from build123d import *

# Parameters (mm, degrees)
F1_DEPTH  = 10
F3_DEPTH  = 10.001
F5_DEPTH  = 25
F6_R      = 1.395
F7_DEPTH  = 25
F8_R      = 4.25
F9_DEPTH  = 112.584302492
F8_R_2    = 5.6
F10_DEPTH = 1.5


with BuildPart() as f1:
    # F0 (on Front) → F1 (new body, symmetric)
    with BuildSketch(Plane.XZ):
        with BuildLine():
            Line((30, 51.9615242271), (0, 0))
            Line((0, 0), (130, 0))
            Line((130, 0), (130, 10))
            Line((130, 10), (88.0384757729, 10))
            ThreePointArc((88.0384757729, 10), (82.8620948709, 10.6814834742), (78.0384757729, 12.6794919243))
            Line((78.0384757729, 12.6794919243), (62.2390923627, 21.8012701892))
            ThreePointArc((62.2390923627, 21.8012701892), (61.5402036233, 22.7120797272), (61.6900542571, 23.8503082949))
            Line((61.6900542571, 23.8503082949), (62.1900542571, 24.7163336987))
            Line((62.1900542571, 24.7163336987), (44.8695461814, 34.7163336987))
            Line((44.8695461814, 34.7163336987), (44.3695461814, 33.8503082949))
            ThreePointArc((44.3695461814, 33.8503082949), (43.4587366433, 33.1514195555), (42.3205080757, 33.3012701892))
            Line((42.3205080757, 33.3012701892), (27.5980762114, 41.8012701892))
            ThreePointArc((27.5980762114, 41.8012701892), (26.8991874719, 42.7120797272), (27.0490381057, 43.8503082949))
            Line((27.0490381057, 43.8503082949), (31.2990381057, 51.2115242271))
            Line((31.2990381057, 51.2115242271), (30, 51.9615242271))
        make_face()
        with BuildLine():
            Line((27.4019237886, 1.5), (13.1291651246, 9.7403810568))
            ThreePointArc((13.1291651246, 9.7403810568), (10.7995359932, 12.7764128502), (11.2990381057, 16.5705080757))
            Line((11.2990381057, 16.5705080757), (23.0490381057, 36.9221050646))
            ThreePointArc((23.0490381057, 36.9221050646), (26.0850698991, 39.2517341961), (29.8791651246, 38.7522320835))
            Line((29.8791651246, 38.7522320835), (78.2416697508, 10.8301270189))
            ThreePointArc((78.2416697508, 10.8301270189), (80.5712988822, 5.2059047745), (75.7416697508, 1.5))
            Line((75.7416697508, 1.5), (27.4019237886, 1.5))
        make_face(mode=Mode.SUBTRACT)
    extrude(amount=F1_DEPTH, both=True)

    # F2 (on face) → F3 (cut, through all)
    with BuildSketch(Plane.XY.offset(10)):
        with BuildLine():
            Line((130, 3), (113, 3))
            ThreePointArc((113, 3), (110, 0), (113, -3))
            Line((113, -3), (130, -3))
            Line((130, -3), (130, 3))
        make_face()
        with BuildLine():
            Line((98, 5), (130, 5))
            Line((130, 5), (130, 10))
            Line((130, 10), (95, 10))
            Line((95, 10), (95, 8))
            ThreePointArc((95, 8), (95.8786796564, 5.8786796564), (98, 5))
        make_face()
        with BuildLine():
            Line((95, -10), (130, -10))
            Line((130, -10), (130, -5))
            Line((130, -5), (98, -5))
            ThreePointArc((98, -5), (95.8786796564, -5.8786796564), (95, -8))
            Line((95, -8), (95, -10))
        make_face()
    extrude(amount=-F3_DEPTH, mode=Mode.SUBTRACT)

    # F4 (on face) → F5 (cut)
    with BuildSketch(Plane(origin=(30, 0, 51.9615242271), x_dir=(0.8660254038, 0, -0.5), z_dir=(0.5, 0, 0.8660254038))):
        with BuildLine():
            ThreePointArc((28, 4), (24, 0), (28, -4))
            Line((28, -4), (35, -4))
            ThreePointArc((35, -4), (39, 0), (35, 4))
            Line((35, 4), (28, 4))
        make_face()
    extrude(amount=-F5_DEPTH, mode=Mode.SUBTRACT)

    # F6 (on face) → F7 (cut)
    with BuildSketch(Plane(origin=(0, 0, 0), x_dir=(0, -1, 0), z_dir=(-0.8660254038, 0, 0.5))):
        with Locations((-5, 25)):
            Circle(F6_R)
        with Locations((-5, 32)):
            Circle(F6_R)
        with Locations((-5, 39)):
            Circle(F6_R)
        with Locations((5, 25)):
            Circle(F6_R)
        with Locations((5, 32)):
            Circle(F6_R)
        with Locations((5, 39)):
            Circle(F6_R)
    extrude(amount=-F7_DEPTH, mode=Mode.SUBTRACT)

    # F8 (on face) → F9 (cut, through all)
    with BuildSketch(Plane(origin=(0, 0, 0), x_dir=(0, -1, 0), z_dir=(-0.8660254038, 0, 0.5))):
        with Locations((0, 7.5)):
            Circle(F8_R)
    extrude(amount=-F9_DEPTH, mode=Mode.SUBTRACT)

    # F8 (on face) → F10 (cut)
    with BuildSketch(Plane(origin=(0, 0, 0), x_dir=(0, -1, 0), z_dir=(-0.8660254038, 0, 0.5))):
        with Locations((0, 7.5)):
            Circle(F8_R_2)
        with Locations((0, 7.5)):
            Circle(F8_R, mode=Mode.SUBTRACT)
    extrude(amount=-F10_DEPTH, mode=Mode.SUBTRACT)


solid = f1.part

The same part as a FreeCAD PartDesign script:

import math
import FreeCAD as App
import Part
import Sketcher

V = App.Vector
Q = App.Units.Quantity

doc = App.newDocument("Part")
params = doc.addObject("Spreadsheet::Sheet", "Params")
for row, (alias, value) in enumerate([
    ("sketch1_radius", "20 mm"),
    ("sketch1_radius2", "5 mm"),
    ("sketch1_radius3", "1.5 mm"),
    ("sketch1_width", "130 mm"),
    ("sketch1_height", "10 mm"),
    ("pad1_length", "20 mm"),
    ("sketch2_radius", "3 mm"),
    ("sketch2_width", "17 mm"),
    ("sketch2_width2", "32 mm"),
    ("sketch2_height", "5 mm"),
    ("sketch3_radius", "4 mm"),
    ("sketch3_width", "7 mm"),
    ("pocket2_length", "25 mm"),
    ("sketch4_diameter", "2.79 mm"),
    ("pocket3_length", "25 mm"),
    ("sketch5_diameter", "8.5 mm"),
    ("sketch6_diameter", "11.2 mm"),
    ("sketch6_diameter2", "8.5 mm"),
    ("pocket5_length", "1.5 mm"),
], start=1):
    params.set(f"A{row}", alias)
    params.set(f"B{row}", "=" + value)
    params.setAlias(f"B{row}", alias)

body = doc.addObject("PartDesign::Body", "Body")

sketch1 = body.newObject("Sketcher::SketchObject", "Sketch")
sketch1.AttachmentSupport = (doc.getObject("XZ_Plane"), [""])
sketch1.MapMode = "FlatFace"
sketch1.addGeometry(Part.LineSegment(V(30, 52, 0), V(0, 0, 0)), False)
sketch1.addGeometry(Part.LineSegment(V(0, 0, 0), V(130, 0, 0)), False)
sketch1.addGeometry(Part.LineSegment(V(130, 0, 0), V(130, 10, 0)), False)
sketch1.addGeometry(Part.LineSegment(V(130, 10, 0), V(88, 10, 0)), False)
sketch1.addGeometry(Part.ArcOfCircle(Part.Circle(V(88, 30, 0), V(0, 0, 1), 20), math.radians(-120), math.radians(-90)), False)
sketch1.addGeometry(Part.LineSegment(V(78, 12.7, 0), V(62.2, 21.8, 0)), False)
sketch1.addGeometry(Part.ArcOfCircle(Part.Circle(V(63, 23.1, 0), V(0, 0, 1), 1.5), math.radians(150), math.radians(240)), False)
sketch1.addGeometry(Part.LineSegment(V(61.7, 23.9, 0), V(62.2, 24.7, 0)), False)
sketch1.addGeometry(Part.LineSegment(V(62.2, 24.7, 0), V(44.9, 34.7, 0)), False)
sketch1.addGeometry(Part.LineSegment(V(44.9, 34.7, 0), V(44.4, 33.9, 0)), False)
sketch1.addGeometry(Part.ArcOfCircle(Part.Circle(V(43.1, 34.6, 0), V(0, 0, 1), 1.5), math.radians(-120), math.radians(-30)), False)
sketch1.addGeometry(Part.LineSegment(V(42.3, 33.3, 0), V(27.6, 41.8, 0)), False)
sketch1.addGeometry(Part.ArcOfCircle(Part.Circle(V(28.3, 43.1, 0), V(0, 0, 1), 1.5), math.radians(150), math.radians(240)), False)
sketch1.addGeometry(Part.LineSegment(V(27, 43.9, 0), V(31.3, 51.2, 0)), False)
sketch1.addGeometry(Part.LineSegment(V(31.3, 51.2, 0), V(30, 52, 0)), False)
sketch1.addGeometry(Part.LineSegment(V(75.7, 1.5, 0), V(27.4, 1.5, 0)), False)
sketch1.addGeometry(Part.LineSegment(V(27.4, 1.5, 0), V(13.1, 9.7, 0)), False)
sketch1.addGeometry(Part.ArcOfCircle(Part.Circle(V(15.6, 14.1, 0), V(0, 0, 1), 5), math.radians(150), math.radians(240)), False)
sketch1.addGeometry(Part.LineSegment(V(11.3, 16.6, 0), V(23, 36.9, 0)), False)
sketch1.addGeometry(Part.ArcOfCircle(Part.Circle(V(27.4, 34.4, 0), V(0, 0, 1), 5), math.radians(60), math.radians(150)), False)
sketch1.addGeometry(Part.LineSegment(V(29.9, 38.8, 0), V(78.2, 10.8, 0)), False)
sketch1.addGeometry(Part.ArcOfCircle(Part.Circle(V(75.7, 6.5, 0), V(0, 0, 1), 5), math.radians(-90), math.radians(60)), False)
sketch1.addConstraint(Sketcher.Constraint("Coincident", 0, 2, 1, 1))
sketch1.addConstraint(Sketcher.Constraint("Coincident", 1, 2, 2, 1))
sketch1.addConstraint(Sketcher.Constraint("Coincident", 2, 2, 3, 1))
sketch1.addConstraint(Sketcher.Constraint("Tangent", 3, 2, 4, 2))
sketch1.addConstraint(Sketcher.Constraint("Tangent", 4, 1, 5, 1))
sketch1.addConstraint(Sketcher.Constraint("Tangent", 5, 2, 6, 2))
sketch1.addConstraint(Sketcher.Constraint("Tangent", 6, 1, 7, 1))
sketch1.addConstraint(Sketcher.Constraint("Coincident", 7, 2, 8, 1))
sketch1.addConstraint(Sketcher.Constraint("Coincident", 8, 2, 9, 1))
sketch1.addConstraint(Sketcher.Constraint("Tangent", 9, 2, 10, 2))
sketch1.addConstraint(Sketcher.Constraint("Tangent", 10, 1, 11, 1))
sketch1.addConstraint(Sketcher.Constraint("Tangent", 11, 2, 12, 2))
sketch1.addConstraint(Sketcher.Constraint("Tangent", 12, 1, 13, 1))
sketch1.addConstraint(Sketcher.Constraint("Coincident", 13, 2, 14, 1))
sketch1.addConstraint(Sketcher.Constraint("Coincident", 14, 2, 0, 1))
sketch1.addConstraint(Sketcher.Constraint("Coincident", 15, 2, 16, 1))
sketch1.addConstraint(Sketcher.Constraint("Tangent", 16, 2, 17, 2))
sketch1.addConstraint(Sketcher.Constraint("Tangent", 17, 1, 18, 1))
sketch1.addConstraint(Sketcher.Constraint("Tangent", 18, 2, 19, 2))
sketch1.addConstraint(Sketcher.Constraint("Tangent", 19, 1, 20, 1))
sketch1.addConstraint(Sketcher.Constraint("Tangent", 20, 2, 21, 2))
sketch1.addConstraint(Sketcher.Constraint("Tangent", 21, 1, 15, 1))
sketch1.addConstraint(Sketcher.Constraint("Horizontal", 1))
sketch1.addConstraint(Sketcher.Constraint("Vertical", 2))
sketch1.addConstraint(Sketcher.Constraint("Horizontal", 3))
sketch1.addConstraint(Sketcher.Constraint("Horizontal", 15))
sketch1.addConstraint(Sketcher.Constraint("Coincident", 0, 2, -1, 1))
sketch1.addConstraint(Sketcher.Constraint("Equal", 6, 10))
sketch1.addConstraint(Sketcher.Constraint("Equal", 10, 12))
sketch1.addConstraint(Sketcher.Constraint("Equal", 17, 19))
sketch1.addConstraint(Sketcher.Constraint("Equal", 19, 21))
sketch1.addConstraint(Sketcher.Constraint("Perpendicular", 0, 5))
sketch1.addConstraint(Sketcher.Constraint("Perpendicular", 5, 7))
sketch1.addConstraint(Sketcher.Constraint("Perpendicular", 7, 8))
sketch1.addConstraint(Sketcher.Constraint("Perpendicular", 8, 9))
sketch1.addConstraint(Sketcher.Constraint("Perpendicular", 9, 11))
sketch1.addConstraint(Sketcher.Constraint("Perpendicular", 11, 13))
sketch1.addConstraint(Sketcher.Constraint("Perpendicular", 13, 14))
sketch1.addConstraint(Sketcher.Constraint("Parallel", 14, 16))
sketch1.addConstraint(Sketcher.Constraint("Perpendicular", 16, 18))
sketch1.addConstraint(Sketcher.Constraint("Perpendicular", 18, 20))
sketch1.addConstraint(Sketcher.Constraint("Equal", 7, 9))
sketch1.addConstraint(Sketcher.Constraint("Radius", 4, 20.0))
sketch1.addConstraint(Sketcher.Constraint("Radius", 17, 5.0))
sketch1.addConstraint(Sketcher.Constraint("Radius", 6, 1.5))
sketch1.addConstraint(Sketcher.Constraint("DistanceX", 1, 1, 1, 2, 130.0))
sketch1.addConstraint(Sketcher.Constraint("DistanceY", 2, 1, 2, 2, 10.0))
sketch1.addConstraint(Sketcher.Constraint("Angle", 0, Q("-120 deg")))
sketch1.addConstraint(Sketcher.Constraint("Distance", 0, 60.0))
sketch1.addConstraint(Sketcher.Constraint("Distance", 7, 1.0))
sketch1.addConstraint(Sketcher.Constraint("Distance", 8, 20.0))
sketch1.addConstraint(Sketcher.Constraint("Distance", 11, 17.0))
sketch1.addConstraint(Sketcher.Constraint("DistanceX", 18, 2, 12, 1, 4.0))
sketch1.addConstraint(Sketcher.Constraint("Distance", 13, 8.5))
sketch1.addConstraint(Sketcher.Constraint("Distance", 14, 1.5))
sketch1.addConstraint(Sketcher.Constraint("Distance", 18, 23.5))
sketch1.addConstraint(Sketcher.Constraint("DistanceY", -1, 1, 21, 3, 6.5))
sketch1.addConstraint(Sketcher.Constraint("DistanceY", 17, 3, 12, 3, 29.0298))
sketch1.setExpression("Constraints[42]", "Params.sketch1_radius")
sketch1.setExpression("Constraints[43]", "Params.sketch1_radius2")
sketch1.setExpression("Constraints[44]", "Params.sketch1_radius3")
sketch1.setExpression("Constraints[45]", "Params.sketch1_width")
sketch1.setExpression("Constraints[46]", "Params.sketch1_height")
pad1 = body.newObject("PartDesign::Pad", "Pad")
pad1.Profile = sketch1
pad1.setExpression("Length", "Params.pad1_length")
pad1.Midplane = True

sketch2 = body.newObject("Sketcher::SketchObject", "Sketch001")
sketch2.AttachmentSupport = (doc.getObject("XY_Plane"), [""])
sketch2.MapMode = "FlatFace"
sketch2.AttachmentOffset = App.Placement(V(0, 0, 10), App.Rotation())
sketch2.addGeometry(Part.LineSegment(V(130, 3, 0), V(113, 3, 0)), False)
sketch2.addGeometry(Part.ArcOfCircle(Part.Circle(V(113, 0, 0), V(0, 0, 1), 3), math.radians(90), math.radians(270)), False)
sketch2.addGeometry(Part.LineSegment(V(113, -3, 0), V(130, -3, 0)), False)
sketch2.addGeometry(Part.LineSegment(V(130, -3, 0), V(130, 3, 0)), False)
sketch2.addGeometry(Part.LineSegment(V(98, 5, 0), V(130, 5, 0)), False)
sketch2.addGeometry(Part.LineSegment(V(130, 5, 0), V(130, 10, 0)), False)
sketch2.addGeometry(Part.LineSegment(V(130, 10, 0), V(95, 10, 0)), False)
sketch2.addGeometry(Part.LineSegment(V(95, 10, 0), V(95, 8, 0)), False)
sketch2.addGeometry(Part.ArcOfCircle(Part.Circle(V(98, 8, 0), V(0, 0, 1), 3), math.radians(180), math.radians(270)), False)
sketch2.addGeometry(Part.LineSegment(V(95, -10, 0), V(130, -10, 0)), False)
sketch2.addGeometry(Part.LineSegment(V(130, -10, 0), V(130, -5, 0)), False)
sketch2.addGeometry(Part.LineSegment(V(130, -5, 0), V(98, -5, 0)), False)
sketch2.addGeometry(Part.ArcOfCircle(Part.Circle(V(98, -8, 0), V(0, 0, 1), 3), math.radians(90), math.radians(180)), False)
sketch2.addGeometry(Part.LineSegment(V(95, -8, 0), V(95, -10, 0)), False)
sketch2.addConstraint(Sketcher.Constraint("Tangent", 0, 2, 1, 1))
sketch2.addConstraint(Sketcher.Constraint("Tangent", 1, 2, 2, 1))
sketch2.addConstraint(Sketcher.Constraint("Coincident", 2, 2, 3, 1))
sketch2.addConstraint(Sketcher.Constraint("Coincident", 3, 2, 0, 1))
sketch2.addConstraint(Sketcher.Constraint("Coincident", 4, 2, 5, 1))
sketch2.addConstraint(Sketcher.Constraint("Coincident", 5, 2, 6, 1))
sketch2.addConstraint(Sketcher.Constraint("Coincident", 6, 2, 7, 1))
sketch2.addConstraint(Sketcher.Constraint("Tangent", 7, 2, 8, 1))
sketch2.addConstraint(Sketcher.Constraint("Tangent", 8, 2, 4, 1))
sketch2.addConstraint(Sketcher.Constraint("Coincident", 9, 2, 10, 1))
sketch2.addConstraint(Sketcher.Constraint("Coincident", 10, 2, 11, 1))
sketch2.addConstraint(Sketcher.Constraint("Tangent", 11, 2, 12, 1))
sketch2.addConstraint(Sketcher.Constraint("Tangent", 12, 2, 13, 1))
sketch2.addConstraint(Sketcher.Constraint("Coincident", 13, 2, 9, 1))
sketch2.addConstraint(Sketcher.Constraint("Horizontal", 0))
sketch2.addConstraint(Sketcher.Constraint("Horizontal", 2))
sketch2.addConstraint(Sketcher.Constraint("Vertical", 3))
sketch2.addConstraint(Sketcher.Constraint("Horizontal", 4))
sketch2.addConstraint(Sketcher.Constraint("Vertical", 5))
sketch2.addConstraint(Sketcher.Constraint("Horizontal", 6))
sketch2.addConstraint(Sketcher.Constraint("Vertical", 7))
sketch2.addConstraint(Sketcher.Constraint("Horizontal", 9))
sketch2.addConstraint(Sketcher.Constraint("Vertical", 10))
sketch2.addConstraint(Sketcher.Constraint("Horizontal", 11))
sketch2.addConstraint(Sketcher.Constraint("Vertical", 13))
sketch2.addConstraint(Sketcher.Constraint("Equal", 1, 8))
sketch2.addConstraint(Sketcher.Constraint("Equal", 8, 12))
sketch2.addConstraint(Sketcher.Constraint("Symmetric", 8, 3, 12, 3, -1))
sketch2.addConstraint(Sketcher.Constraint("Symmetric", 5, 2, 9, 2, -1))
sketch2.addConstraint(Sketcher.Constraint("PointOnObject", 1, 3, -1))
sketch2.addConstraint(Sketcher.Constraint("Vertical", 3, 2, 4, 2))
sketch2.addConstraint(Sketcher.Constraint("Radius", 1, 3.0))
sketch2.addConstraint(Sketcher.Constraint("DistanceX", 0, 2, 0, 1, 17.0))
sketch2.addConstraint(Sketcher.Constraint("DistanceX", 4, 1, 4, 2, 32.0))
sketch2.addConstraint(Sketcher.Constraint("DistanceY", 5, 1, 5, 2, 5.0))
sketch2.addConstraint(Sketcher.Constraint("DistanceX", -1, 1, 1, 3, 113.0))
sketch2.addConstraint(Sketcher.Constraint("DistanceY", -1, 1, 8, 3, 8.0))
sketch2.setExpression("Constraints[31]", "Params.sketch2_radius")
sketch2.setExpression("Constraints[32]", "Params.sketch2_width")
sketch2.setExpression("Constraints[33]", "Params.sketch2_width2")
sketch2.setExpression("Constraints[34]", "Params.sketch2_height")
pocket1 = body.newObject("PartDesign::Pocket", "Pocket")
pocket1.Profile = sketch2
pocket1.Type = "ThroughAll"

sketch3 = body.newObject("Sketcher::SketchObject", "Sketch002")
sketch3.Placement = App.Placement(V(30, 0, 51.961524), App.Rotation(V(0.866025404, 0, -0.5), V(0, 1, 0), V(0.5, 0, 0.866025404), "ZXY"))
sketch3.addGeometry(Part.ArcOfCircle(Part.Circle(V(28, 0, 0), V(0, 0, 1), 4), math.radians(90), math.radians(270)), False)
sketch3.addGeometry(Part.LineSegment(V(28, -4, 0), V(35, -4, 0)), False)
sketch3.addGeometry(Part.ArcOfCircle(Part.Circle(V(35, 0, 0), V(0, 0, 1), 4), math.radians(-90), math.radians(90)), False)
sketch3.addGeometry(Part.LineSegment(V(35, 4, 0), V(28, 4, 0)), False)
sketch3.addConstraint(Sketcher.Constraint("Tangent", 0, 2, 1, 1))
sketch3.addConstraint(Sketcher.Constraint("Tangent", 1, 2, 2, 1))
sketch3.addConstraint(Sketcher.Constraint("Tangent", 2, 2, 3, 1))
sketch3.addConstraint(Sketcher.Constraint("Tangent", 3, 2, 0, 1))
sketch3.addConstraint(Sketcher.Constraint("Horizontal", 1))
sketch3.addConstraint(Sketcher.Constraint("Horizontal", 3))
sketch3.addConstraint(Sketcher.Constraint("PointOnObject", 0, 3, -1))
sketch3.addConstraint(Sketcher.Constraint("Radius", 0, 4.0))
sketch3.addConstraint(Sketcher.Constraint("DistanceX", 1, 1, 1, 2, 7.0))
sketch3.addConstraint(Sketcher.Constraint("DistanceX", -1, 1, 0, 3, 28.0))
sketch3.setExpression("Constraints[7]", "Params.sketch3_radius")
sketch3.setExpression("Constraints[8]", "Params.sketch3_width")
pocket2 = body.newObject("PartDesign::Pocket", "Pocket001")
pocket2.Profile = sketch3
pocket2.setExpression("Length", "Params.pocket2_length")

sketch4 = body.newObject("Sketcher::SketchObject", "Sketch003")
sketch4.Placement = App.Placement(V(0, 0, 0), App.Rotation(V(0, -1, 0), V(0.5, 0, 0.866025404), V(-0.866025404, 0, 0.5), "ZXY"))
sketch4.addGeometry(Part.Circle(V(-5, 25, 0), V(0, 0, 1), 1.4), False)
sketch4.addGeometry(Part.Circle(V(-5, 32, 0), V(0, 0, 1), 1.4), False)
sketch4.addGeometry(Part.Circle(V(-5, 39, 0), V(0, 0, 1), 1.4), False)
sketch4.addGeometry(Part.Circle(V(5, 25, 0), V(0, 0, 1), 1.4), False)
sketch4.addGeometry(Part.Circle(V(5, 32, 0), V(0, 0, 1), 1.4), False)
sketch4.addGeometry(Part.Circle(V(5, 39, 0), V(0, 0, 1), 1.4), False)
sketch4.addConstraint(Sketcher.Constraint("Equal", 0, 1))
sketch4.addConstraint(Sketcher.Constraint("Equal", 1, 2))
sketch4.addConstraint(Sketcher.Constraint("Equal", 2, 3))
sketch4.addConstraint(Sketcher.Constraint("Equal", 3, 4))
sketch4.addConstraint(Sketcher.Constraint("Equal", 4, 5))
sketch4.addConstraint(Sketcher.Constraint("Symmetric", 0, 3, 3, 3, -2))
sketch4.addConstraint(Sketcher.Constraint("Symmetric", 1, 3, 4, 3, -2))
sketch4.addConstraint(Sketcher.Constraint("Symmetric", 2, 3, 5, 3, -2))
sketch4.addConstraint(Sketcher.Constraint("Vertical", 0, 3, 1, 3))
sketch4.addConstraint(Sketcher.Constraint("Vertical", 1, 3, 2, 3))
sketch4.addConstraint(Sketcher.Constraint("Diameter", 0, 2.79))
sketch4.addConstraint(Sketcher.Constraint("DistanceX", 0, 3, -1, 1, 5.0))
sketch4.addConstraint(Sketcher.Constraint("DistanceY", -1, 1, 0, 3, 25.0))
sketch4.addConstraint(Sketcher.Constraint("DistanceY", -1, 1, 1, 3, 32.0))
sketch4.addConstraint(Sketcher.Constraint("DistanceY", -1, 1, 2, 3, 39.0))
sketch4.setExpression("Constraints[10]", "Params.sketch4_diameter")
pocket3 = body.newObject("PartDesign::Pocket", "Pocket002")
pocket3.Profile = sketch4
pocket3.setExpression("Length", "Params.pocket3_length")

sketch5 = body.newObject("Sketcher::SketchObject", "Sketch004")
sketch5.Placement = App.Placement(V(0, 0, 0), App.Rotation(V(0, -1, 0), V(0.5, 0, 0.866025404), V(-0.866025404, 0, 0.5), "ZXY"))
sketch5.addGeometry(Part.Circle(V(0, 7.5, 0), V(0, 0, 1), 4.2), False)
sketch5.addConstraint(Sketcher.Constraint("PointOnObject", 0, 3, -2))
sketch5.addConstraint(Sketcher.Constraint("Diameter", 0, 8.5))
sketch5.addConstraint(Sketcher.Constraint("DistanceY", -1, 1, 0, 3, 7.5))
sketch5.setExpression("Constraints[1]", "Params.sketch5_diameter")
pocket4 = body.newObject("PartDesign::Pocket", "Pocket003")
pocket4.Profile = sketch5
pocket4.Type = "ThroughAll"

sketch6 = body.newObject("Sketcher::SketchObject", "Sketch005")
sketch6.Placement = App.Placement(V(0, 0, 0), App.Rotation(V(0, -1, 0), V(0.5, 0, 0.866025404), V(-0.866025404, 0, 0.5), "ZXY"))
sketch6.addGeometry(Part.Circle(V(0, 7.5, 0), V(0, 0, 1), 5.6), False)
sketch6.addGeometry(Part.Circle(V(0, 7.5, 0), V(0, 0, 1), 4.2), False)
sketch6.addConstraint(Sketcher.Constraint("Coincident", 1, 3, 0, 3))
sketch6.addConstraint(Sketcher.Constraint("PointOnObject", 0, 3, -2))
sketch6.addConstraint(Sketcher.Constraint("Diameter", 0, 11.2))
sketch6.addConstraint(Sketcher.Constraint("Diameter", 1, 8.5))
sketch6.addConstraint(Sketcher.Constraint("DistanceY", -1, 1, 0, 3, 7.5))
sketch6.setExpression("Constraints[2]", "Params.sketch6_diameter")
sketch6.setExpression("Constraints[3]", "Params.sketch6_diameter2")
pocket5 = body.newObject("PartDesign::Pocket", "Pocket004")
pocket5.Profile = sketch6
pocket5.setExpression("Length", "Params.pocket5_length")

doc.recompute()
